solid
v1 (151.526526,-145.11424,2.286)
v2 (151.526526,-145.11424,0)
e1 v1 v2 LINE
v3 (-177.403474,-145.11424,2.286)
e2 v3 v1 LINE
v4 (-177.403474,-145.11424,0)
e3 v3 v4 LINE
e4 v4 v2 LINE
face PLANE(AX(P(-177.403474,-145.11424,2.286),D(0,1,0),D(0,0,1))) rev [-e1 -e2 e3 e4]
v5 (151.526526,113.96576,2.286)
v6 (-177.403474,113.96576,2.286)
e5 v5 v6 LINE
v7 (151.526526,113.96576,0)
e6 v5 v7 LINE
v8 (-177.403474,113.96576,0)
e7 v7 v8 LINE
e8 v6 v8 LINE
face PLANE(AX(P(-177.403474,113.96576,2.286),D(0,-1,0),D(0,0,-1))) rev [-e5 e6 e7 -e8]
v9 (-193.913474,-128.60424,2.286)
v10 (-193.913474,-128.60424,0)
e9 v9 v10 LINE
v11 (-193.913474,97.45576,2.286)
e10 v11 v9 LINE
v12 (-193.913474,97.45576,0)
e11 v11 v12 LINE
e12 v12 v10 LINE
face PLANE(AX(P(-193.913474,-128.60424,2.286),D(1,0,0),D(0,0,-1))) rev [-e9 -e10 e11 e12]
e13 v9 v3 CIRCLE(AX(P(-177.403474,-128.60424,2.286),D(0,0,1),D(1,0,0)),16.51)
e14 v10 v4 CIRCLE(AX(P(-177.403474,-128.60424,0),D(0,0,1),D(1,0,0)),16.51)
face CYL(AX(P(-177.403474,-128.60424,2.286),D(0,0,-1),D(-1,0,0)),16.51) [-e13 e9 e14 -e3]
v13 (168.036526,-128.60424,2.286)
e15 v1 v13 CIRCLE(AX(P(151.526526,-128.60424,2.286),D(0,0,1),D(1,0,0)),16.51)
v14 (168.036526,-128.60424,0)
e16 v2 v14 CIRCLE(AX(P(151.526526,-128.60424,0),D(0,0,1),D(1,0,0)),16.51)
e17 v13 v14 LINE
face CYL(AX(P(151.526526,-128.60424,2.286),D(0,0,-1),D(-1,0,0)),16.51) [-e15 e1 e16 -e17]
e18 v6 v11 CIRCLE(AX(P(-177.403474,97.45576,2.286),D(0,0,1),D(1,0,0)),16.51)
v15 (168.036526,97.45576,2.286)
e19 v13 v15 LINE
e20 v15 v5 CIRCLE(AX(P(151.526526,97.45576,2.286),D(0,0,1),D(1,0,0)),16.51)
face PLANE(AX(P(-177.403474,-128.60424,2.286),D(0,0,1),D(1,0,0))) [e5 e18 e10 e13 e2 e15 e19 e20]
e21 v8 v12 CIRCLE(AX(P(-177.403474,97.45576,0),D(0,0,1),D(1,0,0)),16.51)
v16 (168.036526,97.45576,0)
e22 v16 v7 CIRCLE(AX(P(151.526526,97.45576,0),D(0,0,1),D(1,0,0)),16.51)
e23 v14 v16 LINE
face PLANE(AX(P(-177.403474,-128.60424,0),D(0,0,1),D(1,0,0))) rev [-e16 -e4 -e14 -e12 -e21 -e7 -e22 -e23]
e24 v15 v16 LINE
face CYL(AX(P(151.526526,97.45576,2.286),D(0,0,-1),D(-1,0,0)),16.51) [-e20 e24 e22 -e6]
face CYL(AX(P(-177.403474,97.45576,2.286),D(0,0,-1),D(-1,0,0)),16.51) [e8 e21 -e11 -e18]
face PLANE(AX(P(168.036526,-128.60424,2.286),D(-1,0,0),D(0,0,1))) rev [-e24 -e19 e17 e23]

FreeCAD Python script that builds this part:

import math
import FreeCAD as App
import Part
import Sketcher
from FreeCAD import Vector
Q = App.Units.Quantity

doc = App.newDocument("Part")
body = doc.addObject("PartDesign::Body", "Body")

# Sketch on XY plane
sketch1 = body.newObject("Sketcher::SketchObject", "Sketch")
sketch1.AttachmentSupport = (doc.getObject("XY_Plane"), [""])
sketch1.MapMode = "FlatFace"
sketch1.addGeometry(Part.LineSegment(Vector(-177, -145, 0), Vector(152, -145, 0)), False)
sketch1.addGeometry(Part.ArcOfCircle(Part.Circle(Vector(152, -129, 0), Vector(0, 0, 1), 17), math.radians(-90), math.radians(0)), False)
sketch1.addGeometry(Part.LineSegment(Vector(168, -129, 0), Vector(168, 97, 0)), False)
sketch1.addGeometry(Part.ArcOfCircle(Part.Circle(Vector(152, 97, 0), Vector(0, 0, 1), 17), math.radians(0), math.radians(90)), False)
sketch1.addGeometry(Part.LineSegment(Vector(152, 114, 0), Vector(-177, 114, 0)), False)
sketch1.addGeometry(Part.ArcOfCircle(Part.Circle(Vector(-177, 97, 0), Vector(0, 0, 1), 17), math.radians(90), math.radians(180)), False)
sketch1.addGeometry(Part.LineSegment(Vector(-194, 97, 0), Vector(-194, -129, 0)), False)
sketch1.addGeometry(Part.ArcOfCircle(Part.Circle(Vector(-177, -129, 0), Vector(0, 0, 1), 17), math.radians(180), math.radians(270)), False)
sketch1.addConstraint(Sketcher.Constraint("Tangent", 0, 2, 1, 1))
sketch1.addConstraint(Sketcher.Constraint("Tangent", 1, 2, 2, 1))
sketch1.addConstraint(Sketcher.Constraint("Tangent", 2, 2, 3, 1))
sketch1.addConstraint(Sketcher.Constraint("Tangent", 3, 2, 4, 1))
sketch1.addConstraint(Sketcher.Constraint("Tangent", 4, 2, 5, 1))
sketch1.addConstraint(Sketcher.Constraint("Tangent", 5, 2, 6, 1))
sketch1.addConstraint(Sketcher.Constraint("Tangent", 6, 2, 7, 1))
sketch1.addConstraint(Sketcher.Constraint("Tangent", 7, 2, 0, 1))
sketch1.addConstraint(Sketcher.Constraint("Horizontal", 0))
sketch1.addConstraint(Sketcher.Constraint("Vertical", 2))
sketch1.addConstraint(Sketcher.Constraint("Horizontal", 4))
sketch1.addConstraint(Sketcher.Constraint("Vertical", 6))
sketch1.addConstraint(Sketcher.Constraint("Equal", 1, 3))
sketch1.addConstraint(Sketcher.Constraint("Equal", 3, 5))
sketch1.addConstraint(Sketcher.Constraint("Equal", 5, 7))
sketch1.addConstraint(Sketcher.Constraint("Radius", 1, Q("0.65 in")))
sketch1.addConstraint(Sketcher.Constraint("DistanceY", 2, 1, 2, 2, Q("8.9 in")))
sketch1.addConstraint(Sketcher.Constraint("DistanceX", 0, 1, 0, 2, Q("12.95 in")))
sketch1.addConstraint(Sketcher.Constraint("DistanceY", 1, 3, -1, 1, 128.60424))
sketch1.addConstraint(Sketcher.Constraint("DistanceX", -1, 1, 1, 3, 151.526526))
pad1 = body.newObject("PartDesign::Pad", "Pad")
pad1.Profile = sketch1
pad1.Length = Q("0.09 in")

doc.recompute()
